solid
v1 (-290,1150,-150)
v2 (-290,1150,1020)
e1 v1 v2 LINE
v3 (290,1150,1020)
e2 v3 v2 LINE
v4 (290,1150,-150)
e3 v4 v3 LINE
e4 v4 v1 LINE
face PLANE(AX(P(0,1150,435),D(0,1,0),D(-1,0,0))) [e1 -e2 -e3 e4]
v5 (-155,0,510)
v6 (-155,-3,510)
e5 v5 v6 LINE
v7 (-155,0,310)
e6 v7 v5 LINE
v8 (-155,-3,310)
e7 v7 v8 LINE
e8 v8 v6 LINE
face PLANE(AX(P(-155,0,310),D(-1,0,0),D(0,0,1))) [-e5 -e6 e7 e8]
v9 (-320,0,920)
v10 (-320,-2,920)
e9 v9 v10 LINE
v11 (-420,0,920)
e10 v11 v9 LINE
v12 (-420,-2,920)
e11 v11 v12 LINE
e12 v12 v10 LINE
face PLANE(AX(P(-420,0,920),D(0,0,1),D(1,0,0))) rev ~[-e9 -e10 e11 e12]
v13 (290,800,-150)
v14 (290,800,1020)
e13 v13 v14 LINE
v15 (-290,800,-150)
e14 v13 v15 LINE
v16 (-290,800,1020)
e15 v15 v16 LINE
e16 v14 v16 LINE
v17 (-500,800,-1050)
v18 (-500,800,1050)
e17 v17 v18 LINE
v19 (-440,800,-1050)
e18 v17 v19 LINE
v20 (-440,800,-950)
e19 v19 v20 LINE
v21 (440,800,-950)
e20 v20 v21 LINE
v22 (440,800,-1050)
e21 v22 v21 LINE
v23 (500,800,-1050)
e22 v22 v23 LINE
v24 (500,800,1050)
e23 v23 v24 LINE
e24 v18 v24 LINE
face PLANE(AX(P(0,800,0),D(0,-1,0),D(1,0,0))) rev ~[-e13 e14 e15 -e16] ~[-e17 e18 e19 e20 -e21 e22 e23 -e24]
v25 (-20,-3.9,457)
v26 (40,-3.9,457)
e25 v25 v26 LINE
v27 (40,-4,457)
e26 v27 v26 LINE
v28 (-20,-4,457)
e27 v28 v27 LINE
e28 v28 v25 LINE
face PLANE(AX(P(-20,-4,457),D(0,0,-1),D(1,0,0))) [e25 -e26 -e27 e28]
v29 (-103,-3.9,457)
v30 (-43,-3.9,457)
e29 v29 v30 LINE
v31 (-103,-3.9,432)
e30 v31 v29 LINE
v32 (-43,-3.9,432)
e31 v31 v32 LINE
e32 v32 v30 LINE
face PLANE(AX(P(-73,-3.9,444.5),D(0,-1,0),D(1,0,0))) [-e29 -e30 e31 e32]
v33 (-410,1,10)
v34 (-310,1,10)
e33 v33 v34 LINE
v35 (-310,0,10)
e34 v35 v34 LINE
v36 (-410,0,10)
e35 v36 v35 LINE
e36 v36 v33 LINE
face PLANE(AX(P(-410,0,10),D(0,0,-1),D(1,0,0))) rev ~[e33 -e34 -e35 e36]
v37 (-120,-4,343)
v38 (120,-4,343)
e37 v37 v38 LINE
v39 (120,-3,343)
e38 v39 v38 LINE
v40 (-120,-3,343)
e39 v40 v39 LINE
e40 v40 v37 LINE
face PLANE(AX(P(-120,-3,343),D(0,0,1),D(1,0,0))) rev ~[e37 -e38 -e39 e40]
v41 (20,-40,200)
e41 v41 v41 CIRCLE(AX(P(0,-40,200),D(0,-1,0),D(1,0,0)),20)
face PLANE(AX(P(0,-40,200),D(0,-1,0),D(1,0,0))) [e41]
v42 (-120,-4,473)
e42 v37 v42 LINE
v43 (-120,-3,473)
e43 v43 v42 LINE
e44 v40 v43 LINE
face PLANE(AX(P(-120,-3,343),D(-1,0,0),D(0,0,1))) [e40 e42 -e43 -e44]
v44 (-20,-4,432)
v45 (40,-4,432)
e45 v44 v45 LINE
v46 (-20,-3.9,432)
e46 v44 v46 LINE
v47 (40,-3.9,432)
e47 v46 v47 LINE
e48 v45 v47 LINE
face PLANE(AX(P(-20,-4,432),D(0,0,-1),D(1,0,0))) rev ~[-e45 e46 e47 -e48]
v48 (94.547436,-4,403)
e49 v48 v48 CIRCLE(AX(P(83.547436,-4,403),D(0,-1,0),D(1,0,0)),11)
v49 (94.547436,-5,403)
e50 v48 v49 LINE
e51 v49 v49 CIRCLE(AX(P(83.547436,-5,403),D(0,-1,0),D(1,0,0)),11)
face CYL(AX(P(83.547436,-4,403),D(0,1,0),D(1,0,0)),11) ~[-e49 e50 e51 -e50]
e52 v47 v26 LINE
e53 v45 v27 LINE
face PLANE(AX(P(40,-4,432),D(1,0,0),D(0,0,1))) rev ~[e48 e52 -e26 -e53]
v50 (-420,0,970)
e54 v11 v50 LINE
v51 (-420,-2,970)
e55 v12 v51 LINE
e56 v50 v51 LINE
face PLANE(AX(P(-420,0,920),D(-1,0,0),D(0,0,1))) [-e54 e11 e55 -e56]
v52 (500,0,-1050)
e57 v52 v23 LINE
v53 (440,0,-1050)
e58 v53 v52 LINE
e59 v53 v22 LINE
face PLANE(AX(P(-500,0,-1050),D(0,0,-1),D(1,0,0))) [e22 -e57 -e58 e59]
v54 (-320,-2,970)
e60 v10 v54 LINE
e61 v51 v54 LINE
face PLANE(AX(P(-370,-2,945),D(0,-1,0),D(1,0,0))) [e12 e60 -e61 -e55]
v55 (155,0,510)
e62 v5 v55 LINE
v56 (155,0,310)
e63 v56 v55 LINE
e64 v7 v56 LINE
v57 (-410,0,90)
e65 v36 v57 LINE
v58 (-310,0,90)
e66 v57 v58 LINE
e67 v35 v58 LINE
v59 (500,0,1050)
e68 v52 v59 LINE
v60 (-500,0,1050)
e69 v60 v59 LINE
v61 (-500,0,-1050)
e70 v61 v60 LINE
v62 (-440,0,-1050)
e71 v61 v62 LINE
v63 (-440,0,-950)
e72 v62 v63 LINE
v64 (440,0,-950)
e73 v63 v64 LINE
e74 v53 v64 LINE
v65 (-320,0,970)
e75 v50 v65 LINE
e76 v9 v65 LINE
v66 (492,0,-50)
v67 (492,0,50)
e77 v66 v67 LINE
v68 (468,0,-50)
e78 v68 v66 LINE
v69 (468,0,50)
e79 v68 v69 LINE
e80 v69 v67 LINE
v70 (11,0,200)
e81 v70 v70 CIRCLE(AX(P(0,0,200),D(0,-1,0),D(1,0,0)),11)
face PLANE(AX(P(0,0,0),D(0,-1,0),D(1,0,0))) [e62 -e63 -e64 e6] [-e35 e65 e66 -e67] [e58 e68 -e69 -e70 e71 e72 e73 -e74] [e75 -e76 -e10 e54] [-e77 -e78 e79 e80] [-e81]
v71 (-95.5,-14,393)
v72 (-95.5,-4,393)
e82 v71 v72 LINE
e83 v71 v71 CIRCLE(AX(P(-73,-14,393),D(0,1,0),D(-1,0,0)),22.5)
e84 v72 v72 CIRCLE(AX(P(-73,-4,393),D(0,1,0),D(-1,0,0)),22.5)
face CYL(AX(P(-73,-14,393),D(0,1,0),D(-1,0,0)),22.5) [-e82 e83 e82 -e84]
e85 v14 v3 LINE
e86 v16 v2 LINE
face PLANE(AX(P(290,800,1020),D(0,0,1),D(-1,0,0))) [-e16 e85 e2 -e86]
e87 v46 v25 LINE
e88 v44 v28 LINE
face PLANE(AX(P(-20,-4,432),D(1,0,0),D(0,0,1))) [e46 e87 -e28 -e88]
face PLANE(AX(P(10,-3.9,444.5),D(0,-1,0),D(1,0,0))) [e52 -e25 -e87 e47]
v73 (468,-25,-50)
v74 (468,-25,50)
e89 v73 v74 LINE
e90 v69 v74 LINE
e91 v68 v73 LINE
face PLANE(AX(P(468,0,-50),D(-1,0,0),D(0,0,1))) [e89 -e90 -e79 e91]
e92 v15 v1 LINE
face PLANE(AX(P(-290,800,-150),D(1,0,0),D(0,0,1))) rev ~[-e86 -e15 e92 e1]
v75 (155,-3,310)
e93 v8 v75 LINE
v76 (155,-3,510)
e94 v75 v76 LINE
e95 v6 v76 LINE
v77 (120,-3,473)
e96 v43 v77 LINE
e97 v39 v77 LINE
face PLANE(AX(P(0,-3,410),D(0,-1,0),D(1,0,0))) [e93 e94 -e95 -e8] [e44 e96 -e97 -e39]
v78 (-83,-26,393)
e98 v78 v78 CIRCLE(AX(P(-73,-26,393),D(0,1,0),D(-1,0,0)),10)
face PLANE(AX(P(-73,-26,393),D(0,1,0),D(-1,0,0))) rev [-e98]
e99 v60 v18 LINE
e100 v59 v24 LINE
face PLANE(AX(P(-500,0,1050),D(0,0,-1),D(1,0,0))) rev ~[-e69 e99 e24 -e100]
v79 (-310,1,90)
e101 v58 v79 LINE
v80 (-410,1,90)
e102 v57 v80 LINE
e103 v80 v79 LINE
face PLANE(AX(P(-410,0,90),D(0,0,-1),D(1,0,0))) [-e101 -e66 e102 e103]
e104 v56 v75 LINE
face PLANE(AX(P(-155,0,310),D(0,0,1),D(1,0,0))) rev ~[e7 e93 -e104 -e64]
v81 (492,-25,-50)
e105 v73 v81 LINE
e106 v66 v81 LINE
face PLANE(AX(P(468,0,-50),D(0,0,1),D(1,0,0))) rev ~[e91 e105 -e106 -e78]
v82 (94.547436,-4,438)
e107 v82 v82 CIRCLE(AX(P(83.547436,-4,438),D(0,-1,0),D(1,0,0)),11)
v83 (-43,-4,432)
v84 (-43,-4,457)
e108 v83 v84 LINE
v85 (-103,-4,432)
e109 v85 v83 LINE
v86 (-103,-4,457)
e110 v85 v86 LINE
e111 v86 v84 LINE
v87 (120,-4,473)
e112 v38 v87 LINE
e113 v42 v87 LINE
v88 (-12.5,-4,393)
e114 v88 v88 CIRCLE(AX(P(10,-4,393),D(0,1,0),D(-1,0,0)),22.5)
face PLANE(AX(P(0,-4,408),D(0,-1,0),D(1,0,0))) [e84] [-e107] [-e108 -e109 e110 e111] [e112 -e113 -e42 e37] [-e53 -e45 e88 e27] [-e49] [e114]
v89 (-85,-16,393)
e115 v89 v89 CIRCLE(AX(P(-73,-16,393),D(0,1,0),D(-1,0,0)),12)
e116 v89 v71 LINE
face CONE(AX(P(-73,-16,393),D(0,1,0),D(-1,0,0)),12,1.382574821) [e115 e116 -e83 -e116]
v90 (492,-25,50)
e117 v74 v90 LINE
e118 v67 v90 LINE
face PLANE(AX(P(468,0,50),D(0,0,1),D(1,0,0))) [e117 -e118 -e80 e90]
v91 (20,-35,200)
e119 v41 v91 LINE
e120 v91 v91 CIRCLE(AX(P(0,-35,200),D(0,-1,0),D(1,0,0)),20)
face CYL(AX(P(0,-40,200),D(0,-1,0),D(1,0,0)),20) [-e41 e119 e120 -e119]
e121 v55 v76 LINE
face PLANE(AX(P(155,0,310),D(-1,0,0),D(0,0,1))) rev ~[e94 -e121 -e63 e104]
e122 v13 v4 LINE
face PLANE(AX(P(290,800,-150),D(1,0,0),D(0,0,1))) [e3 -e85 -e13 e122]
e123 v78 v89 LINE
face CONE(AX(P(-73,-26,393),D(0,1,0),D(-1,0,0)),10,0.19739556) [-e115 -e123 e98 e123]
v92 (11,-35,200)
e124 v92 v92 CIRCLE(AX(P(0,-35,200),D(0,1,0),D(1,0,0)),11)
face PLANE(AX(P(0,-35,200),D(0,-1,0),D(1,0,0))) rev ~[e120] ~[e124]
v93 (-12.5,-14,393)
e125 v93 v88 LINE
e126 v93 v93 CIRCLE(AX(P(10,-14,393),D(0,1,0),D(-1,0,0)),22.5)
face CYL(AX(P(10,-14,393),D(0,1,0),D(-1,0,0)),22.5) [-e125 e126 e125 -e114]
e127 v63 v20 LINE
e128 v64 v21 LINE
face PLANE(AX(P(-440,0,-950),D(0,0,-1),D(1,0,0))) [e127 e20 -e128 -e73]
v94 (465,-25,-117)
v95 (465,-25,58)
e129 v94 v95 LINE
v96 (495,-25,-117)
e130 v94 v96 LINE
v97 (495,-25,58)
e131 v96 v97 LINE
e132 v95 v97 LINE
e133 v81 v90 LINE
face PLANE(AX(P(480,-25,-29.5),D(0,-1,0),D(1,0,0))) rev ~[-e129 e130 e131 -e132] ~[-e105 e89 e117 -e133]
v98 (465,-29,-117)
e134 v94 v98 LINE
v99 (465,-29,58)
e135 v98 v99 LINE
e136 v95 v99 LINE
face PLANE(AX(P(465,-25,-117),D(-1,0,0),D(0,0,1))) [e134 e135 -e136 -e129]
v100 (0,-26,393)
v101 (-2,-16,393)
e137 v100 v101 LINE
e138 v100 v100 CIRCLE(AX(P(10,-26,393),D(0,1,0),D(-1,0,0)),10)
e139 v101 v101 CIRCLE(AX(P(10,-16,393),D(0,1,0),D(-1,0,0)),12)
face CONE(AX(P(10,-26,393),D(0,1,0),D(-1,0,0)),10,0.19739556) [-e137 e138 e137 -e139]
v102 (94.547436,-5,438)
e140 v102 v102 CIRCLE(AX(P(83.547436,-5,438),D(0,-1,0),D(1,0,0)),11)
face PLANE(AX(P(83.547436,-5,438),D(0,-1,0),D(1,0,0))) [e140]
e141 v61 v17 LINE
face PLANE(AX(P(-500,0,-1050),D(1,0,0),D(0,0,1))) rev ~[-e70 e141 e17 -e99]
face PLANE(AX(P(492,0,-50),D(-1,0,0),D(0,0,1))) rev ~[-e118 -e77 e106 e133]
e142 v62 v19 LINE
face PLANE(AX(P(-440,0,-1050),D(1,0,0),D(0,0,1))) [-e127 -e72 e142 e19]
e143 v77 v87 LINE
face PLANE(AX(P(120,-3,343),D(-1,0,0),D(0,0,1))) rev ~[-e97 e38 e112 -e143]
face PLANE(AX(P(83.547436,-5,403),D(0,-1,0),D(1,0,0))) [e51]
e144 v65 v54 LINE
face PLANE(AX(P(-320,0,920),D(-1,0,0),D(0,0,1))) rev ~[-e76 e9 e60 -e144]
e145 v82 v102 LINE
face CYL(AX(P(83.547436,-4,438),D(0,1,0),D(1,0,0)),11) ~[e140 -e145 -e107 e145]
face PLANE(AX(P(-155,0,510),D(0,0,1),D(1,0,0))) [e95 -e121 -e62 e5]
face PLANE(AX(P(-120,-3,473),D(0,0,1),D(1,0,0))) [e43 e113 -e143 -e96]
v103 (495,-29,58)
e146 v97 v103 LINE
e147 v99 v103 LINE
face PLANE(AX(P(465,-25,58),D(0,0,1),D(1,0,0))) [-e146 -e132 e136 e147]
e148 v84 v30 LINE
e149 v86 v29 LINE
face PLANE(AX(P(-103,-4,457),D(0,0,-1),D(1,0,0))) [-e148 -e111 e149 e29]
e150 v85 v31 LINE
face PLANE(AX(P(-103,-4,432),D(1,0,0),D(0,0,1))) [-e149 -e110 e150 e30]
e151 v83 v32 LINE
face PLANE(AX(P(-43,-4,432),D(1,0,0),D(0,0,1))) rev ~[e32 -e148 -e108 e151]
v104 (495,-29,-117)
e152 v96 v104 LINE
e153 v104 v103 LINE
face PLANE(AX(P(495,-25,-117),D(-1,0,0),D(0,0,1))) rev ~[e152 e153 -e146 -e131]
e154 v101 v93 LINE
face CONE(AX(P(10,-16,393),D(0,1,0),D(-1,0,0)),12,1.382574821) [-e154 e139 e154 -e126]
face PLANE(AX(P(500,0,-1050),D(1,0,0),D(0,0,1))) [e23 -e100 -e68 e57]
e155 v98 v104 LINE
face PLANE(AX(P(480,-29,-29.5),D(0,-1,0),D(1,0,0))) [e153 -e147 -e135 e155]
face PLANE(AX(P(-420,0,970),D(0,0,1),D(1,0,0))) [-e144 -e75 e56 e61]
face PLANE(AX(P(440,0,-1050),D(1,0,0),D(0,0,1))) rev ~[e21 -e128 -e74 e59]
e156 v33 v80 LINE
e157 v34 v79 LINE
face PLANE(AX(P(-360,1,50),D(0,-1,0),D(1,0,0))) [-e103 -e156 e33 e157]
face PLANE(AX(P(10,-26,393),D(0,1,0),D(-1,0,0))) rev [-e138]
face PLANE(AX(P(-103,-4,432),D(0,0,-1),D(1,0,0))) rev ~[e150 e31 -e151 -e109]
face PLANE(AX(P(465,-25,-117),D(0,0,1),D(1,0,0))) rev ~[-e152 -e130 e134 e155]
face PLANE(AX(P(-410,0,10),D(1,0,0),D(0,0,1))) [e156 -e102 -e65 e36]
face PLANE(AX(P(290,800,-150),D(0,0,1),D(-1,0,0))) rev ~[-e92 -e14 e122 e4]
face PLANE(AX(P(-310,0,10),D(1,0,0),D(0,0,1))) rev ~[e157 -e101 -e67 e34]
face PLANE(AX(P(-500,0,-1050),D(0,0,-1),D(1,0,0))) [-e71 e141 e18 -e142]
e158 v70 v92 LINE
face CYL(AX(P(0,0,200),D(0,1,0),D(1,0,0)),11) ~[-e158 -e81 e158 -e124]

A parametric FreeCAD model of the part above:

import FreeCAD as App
import Part
import Sketcher
from FreeCAD import Vector

doc = App.newDocument("Part")
params = doc.addObject("Spreadsheet::Sheet", "Params")
for row, (alias, value) in enumerate([
    ("sketch1_width", "1000 mm"),
    ("sketch1_height", "2100 mm"),
    ("pad1_length", "800 mm"),
    ("sketch2_width", "580 mm"),
    ("sketch2_height", "1170 mm"),
    ("pad2_length", "350 mm"),
    ("sketch3_diameter", "22 mm"),
    ("pad3_length", "40 mm"),
    ("sketch4_diameter", "40 mm"),
    ("pad4_length", "5 mm"),
    ("sketch5_width", "310 mm"),
    ("sketch5_height", "200 mm"),
    ("pad5_length", "3 mm"),
    ("sketch6_width", "100 mm"),
    ("sketch6_height", "80 mm"),
    ("pocket1_length", "1 mm"),
    ("sketch7_width", "880 mm"),
    ("sketch7_height", "100 mm"),
    ("sketch8_width", "24 mm"),
    ("sketch8_height", "100 mm"),
    ("pad6_length", "25 mm"),
    ("sketch9_width", "100 mm"),
    ("sketch9_height", "50 mm"),
    ("pad7_length", "2 mm"),
    ("sketch10_width", "30 mm"),
    ("sketch10_height", "175 mm"),
    ("pad8_length", "4 mm"),
    ("sketch11_width", "240 mm"),
    ("sketch11_height", "130 mm"),
    ("pad9_length", "1 mm"),
    ("sketch12_width", "60 mm"),
    ("sketch12_height", "25 mm"),
    ("pocket3_length", "0.1 mm"),
    ("sketch13_width", "10 mm"),
    ("sketch13_height", "22 mm"),
    ("sketch13_width2", "22.5 mm"),
    ("revolution_angle", "360 deg"),
    ("sketch14_width", "10 mm"),
    ("sketch14_height", "22 mm"),
    ("sketch14_width2", "22.5 mm"),
    ("revolution2_angle", "360 deg"),
    ("sketch15_diameter", "22 mm"),
    ("pad10_length", "1 mm"),
], start=1):
    params.set(f"A{row}", alias)
    params.set(f"B{row}", "=" + value)
    params.setAlias(f"B{row}", alias)

body = doc.addObject("PartDesign::Body", "Body")

sketch1 = body.newObject("Sketcher::SketchObject", "Sketch")
sketch1.AttachmentSupport = (doc.getObject("XZ_Plane"), [""])
sketch1.MapMode = "FlatFace"
sketch1.addGeometry(Part.LineSegment(Vector(-500, 1050, 0), Vector(-500, -1050, 0)), False)
sketch1.addGeometry(Part.LineSegment(Vector(-500, -1050, 0), Vector(500, -1050, 0)), False)
sketch1.addGeometry(Part.LineSegment(Vector(500, -1050, 0), Vector(500, 1050, 0)), False)
sketch1.addGeometry(Part.LineSegment(Vector(500, 1050, 0), Vector(-500, 1050, 0)), False)
sketch1.addConstraint(Sketcher.Constraint("Coincident", 0, 2, 1, 1))
sketch1.addConstraint(Sketcher.Constraint("Coincident", 1, 2, 2, 1))
sketch1.addConstraint(Sketcher.Constraint("Coincident", 2, 2, 3, 1))
sketch1.addConstraint(Sketcher.Constraint("Coincident", 3, 2, 0, 1))
sketch1.addConstraint(Sketcher.Constraint("Vertical", 0))
sketch1.addConstraint(Sketcher.Constraint("Horizontal", 1))
sketch1.addConstraint(Sketcher.Constraint("Vertical", 2))
sketch1.addConstraint(Sketcher.Constraint("Horizontal", 3))
sketch1.addConstraint(Sketcher.Constraint("Symmetric", 0, 2, 2, 2, -1, 1))
sketch1.addConstraint(Sketcher.Constraint("DistanceX", 1, 1, 1, 2, 1000.0))
sketch1.addConstraint(Sketcher.Constraint("DistanceY", 0, 2, 0, 1, 2100.0))
sketch1.setExpression("Constraints[9]", "Params.sketch1_width")
sketch1.setExpression("Constraints[10]", "Params.sketch1_height")
pad1 = body.newObject("PartDesign::Pad", "Pad")
pad1.Profile = sketch1
pad1.setExpression("Length", "Params.pad1_length")
pad1.Reversed = True

sketch2 = body.newObject("Sketcher::SketchObject", "Sketch001")
sketch2.AttachmentSupport = (doc.getObject("XZ_Plane"), [""])
sketch2.MapMode = "FlatFace"
sketch2.AttachmentOffset = App.Placement(Vector(0, 0, -800), App.Rotation())
sketch2.addGeometry(Part.LineSegment(Vector(290, 1020, 0), Vector(290, -150, 0)), False)
sketch2.addGeometry(Part.LineSegment(Vector(290, -150, 0), Vector(-290, -150, 0)), False)
sketch2.addGeometry(Part.LineSegment(Vector(-290, -150, 0), Vector(-290, 1020, 0)), False)
sketch2.addGeometry(Part.LineSegment(Vector(-290, 1020, 0), Vector(290, 1020, 0)), False)
sketch2.addConstraint(Sketcher.Constraint("Coincident", 0, 2, 1, 1))
sketch2.addConstraint(Sketcher.Constraint("Coincident", 1, 2, 2, 1))
sketch2.addConstraint(Sketcher.Constraint("Coincident", 2, 2, 3, 1))
sketch2.addConstraint(Sketcher.Constraint("Coincident", 3, 2, 0, 1))
sketch2.addConstraint(Sketcher.Constraint("Vertical", 0))
sketch2.addConstraint(Sketcher.Constraint("Horizontal", 1))
sketch2.addConstraint(Sketcher.Constraint("Vertical", 2))
sketch2.addConstraint(Sketcher.Constraint("Horizontal", 3))
sketch2.addConstraint(Sketcher.Constraint("DistanceX", 1, 2, 1, 1, 580.0))
sketch2.addConstraint(Sketcher.Constraint("DistanceY", 0, 2, 0, 1, 1170.0))
sketch2.addConstraint(Sketcher.Constraint("DistanceX", -1, 1, 0, 2, 290.0))
sketch2.addConstraint(Sketcher.Constraint("DistanceY", 0, 2, -1, 1, 150.0))
sketch2.setExpression("Constraints[8]", "Params.sketch2_width")
sketch2.setExpression("Constraints[9]", "Params.sketch2_height")
pad2 = body.newObject("PartDesign::Pad", "Pad001")
pad2.Profile = sketch2
pad2.setExpression("Length", "Params.pad2_length")
pad2.Reversed = True

sketch3 = body.newObject("Sketcher::SketchObject", "Sketch002")
sketch3.AttachmentSupport = (doc.getObject("XZ_Plane"), [""])
sketch3.MapMode = "FlatFace"
sketch3.addGeometry(Part.Circle(Vector(0, 200, 0), Vector(0, 0, 1), 11), False)
sketch3.addConstraint(Sketcher.Constraint("PointOnObject", 0, 3, -2))
sketch3.addConstraint(Sketcher.Constraint("Diameter", 0, 22.0))
sketch3.addConstraint(Sketcher.Constraint("DistanceY", -1, 1, 0, 3, 200.0))
sketch3.setExpression("Constraints[1]", "Params.sketch3_diameter")
pad3 = body.newObject("PartDesign::Pad", "Pad002")
pad3.Profile = sketch3
pad3.setExpression("Length", "Params.pad3_length")

sketch4 = body.newObject("Sketcher::SketchObject", "Sketch003")
sketch4.AttachmentSupport = (doc.getObject("XZ_Plane"), [""])
sketch4.MapMode = "FlatFace"
sketch4.AttachmentOffset = App.Placement(Vector(0, 0, 40), App.Rotation())
sketch4.addGeometry(Part.Circle(Vector(0, 200, 0), Vector(0, 0, 1), 20), False)
sketch4.addConstraint(Sketcher.Constraint("PointOnObject", 0, 3, -2))
sketch4.addConstraint(Sketcher.Constraint("Diameter", 0, 40.0))
sketch4.addConstraint(Sketcher.Constraint("DistanceY", -1, 1, 0, 3, 200.0))
sketch4.setExpression("Constraints[1]", "Params.sketch4_diameter")
pad4 = body.newObject("PartDesign::Pad", "Pad003")
pad4.Profile = sketch4
pad4.setExpression("Length", "Params.pad4_length")
pad4.Reversed = True

sketch5 = body.newObject("Sketcher::SketchObject", "Sketch004")
sketch5.AttachmentSupport = (doc.getObject("XZ_Plane"), [""])
sketch5.MapMode = "FlatFace"
sketch5.addGeometry(Part.LineSegment(Vector(-155, 510, 0), Vector(-155, 310, 0)), False)
sketch5.addGeometry(Part.LineSegment(Vector(-155, 310, 0), Vector(155, 310, 0)), False)
sketch5.addGeometry(Part.LineSegment(Vector(155, 310, 0), Vector(155, 510, 0)), False)
sketch5.addGeometry(Part.LineSegment(Vector(155, 510, 0), Vector(-155, 510, 0)), False)
sketch5.addConstraint(Sketcher.Constraint("Coincident", 0, 2, 1, 1))
sketch5.addConstraint(Sketcher.Constraint("Coincident", 1, 2, 2, 1))
sketch5.addConstraint(Sketcher.Constraint("Coincident", 2, 2, 3, 1))
sketch5.addConstraint(Sketcher.Constraint("Coincident", 3, 2, 0, 1))
sketch5.addConstraint(Sketcher.Constraint("Vertical", 0))
sketch5.addConstraint(Sketcher.Constraint("Horizontal", 1))
sketch5.addConstraint(Sketcher.Constraint("Vertical", 2))
sketch5.addConstraint(Sketcher.Constraint("Horizontal", 3))
sketch5.addConstraint(Sketcher.Constraint("DistanceX", 1, 1, 1, 2, 310.0))
sketch5.addConstraint(Sketcher.Constraint("DistanceY", 0, 2, 0, 1, 200.0))
sketch5.addConstraint(Sketcher.Constraint("DistanceX", 0, 2, -1, 1, 155.0))
sketch5.addConstraint(Sketcher.Constraint("DistanceY", -1, 1, 0, 2, 310.0))
sketch5.setExpression("Constraints[8]", "Params.sketch5_width")
sketch5.setExpression("Constraints[9]", "Params.sketch5_height")
pad5 = body.newObject("PartDesign::Pad", "Pad004")
pad5.Profile = sketch5
pad5.setExpression("Length", "Params.pad5_length")

sketch6 = body.newObject("Sketcher::SketchObject", "Sketch005")
sketch6.AttachmentSupport = (doc.getObject("XZ_Plane"), [""])
sketch6.MapMode = "FlatFace"
sketch6.addGeometry(Part.LineSegment(Vector(-410, 90, 0), Vector(-410, 10, 0)), False)
sketch6.addGeometry(Part.LineSegment(Vector(-410, 10, 0), Vector(-310, 10, 0)), False)
sketch6.addGeometry(Part.LineSegment(Vector(-310, 10, 0), Vector(-310, 90, 0)), False)
sketch6.addGeometry(Part.LineSegment(Vector(-310, 90, 0), Vector(-410, 90, 0)), False)
sketch6.addConstraint(Sketcher.Constraint("Coincident", 0, 2, 1, 1))
sketch6.addConstraint(Sketcher.Constraint("Coincident", 1, 2, 2, 1))
sketch6.addConstraint(Sketcher.Constraint("Coincident", 2, 2, 3, 1))
sketch6.addConstraint(Sketcher.Constraint("Coincident", 3, 2, 0, 1))
sketch6.addConstraint(Sketcher.Constraint("Vertical", 0))
sketch6.addConstraint(Sketcher.Constraint("Horizontal", 1))
sketch6.addConstraint(Sketcher.Constraint("Vertical", 2))
sketch6.addConstraint(Sketcher.Constraint("Horizontal", 3))
sketch6.addConstraint(Sketcher.Constraint("DistanceX", 1, 1, 1, 2, 100.0))
sketch6.addConstraint(Sketcher.Constraint("DistanceY", 0, 2, 0, 1, 80.0))
sketch6.addConstraint(Sketcher.Constraint("DistanceX", 0, 2, -1, 1, 410.0))
sketch6.addConstraint(Sketcher.Constraint("DistanceY", -1, 1, 0, 2, 10.0))
sketch6.setExpression("Constraints[8]", "Params.sketch6_width")
sketch6.setExpression("Constraints[9]", "Params.sketch6_height")
pocket1 = body.newObject("PartDesign::Pocket", "Pocket")
pocket1.Profile = sketch6
pocket1.setExpression("Length", "Params.pocket1_length")

sketch7 = body.newObject("Sketcher::SketchObject", "Sketch006")
sketch7.AttachmentSupport = (doc.getObject("XZ_Plane"), [""])
sketch7.MapMode = "FlatFace"
sketch7.addGeometry(Part.LineSegment(Vector(-440, -950, 0), Vector(-440, -1050, 0)), False)
sketch7.addGeometry(Part.LineSegment(Vector(-440, -1050, 0), Vector(440, -1050, 0)), False)
sketch7.addGeometry(Part.LineSegment(Vector(440, -1050, 0), Vector(440, -950, 0)), False)
sketch7.addGeometry(Part.LineSegment(Vector(440, -950, 0), Vector(-440, -950, 0)), False)
sketch7.addConstraint(Sketcher.Constraint("Coincident", 0, 2, 1, 1))
sketch7.addConstraint(Sketcher.Constraint("Coincident", 1, 2, 2, 1))
sketch7.addConstraint(Sketcher.Constraint("Coincident", 2, 2, 3, 1))
sketch7.addConstraint(Sketcher.Constraint("Coincident", 3, 2, 0, 1))
sketch7.addConstraint(Sketcher.Constraint("Vertical", 0))
sketch7.addConstraint(Sketcher.Constraint("Horizontal", 1))
sketch7.addConstraint(Sketcher.Constraint("Vertical", 2))
sketch7.addConstraint(Sketcher.Constraint("Horizontal", 3))
sketch7.addConstraint(Sketcher.Constraint("DistanceX", 1, 1, 1, 2, 880.0))
sketch7.addConstraint(Sketcher.Constraint("DistanceY", 0, 2, 0, 1, 100.0))
sketch7.addConstraint(Sketcher.Constraint("DistanceX", 0, 2, -1, 1, 440.0))
sketch7.addConstraint(Sketcher.Constraint("DistanceY", 0, 2, -1, 1, 1050.0))
sketch7.setExpression("Constraints[8]", "Params.sketch7_width")
sketch7.setExpression("Constraints[9]", "Params.sketch7_height")
pocket2 = body.newObject("PartDesign::Pocket", "Pocket001")
pocket2.Profile = sketch7
pocket2.Type = "ThroughAll"

sketch8 = body.newObject("Sketcher::SketchObject", "Sketch007")
sketch8.AttachmentSupport = (doc.getObject("XZ_Plane"), [""])
sketch8.MapMode = "FlatFace"
sketch8.addGeometry(Part.LineSegment(Vector(468, 50, 0), Vector(468, -50, 0)), False)
sketch8.addGeometry(Part.LineSegment(Vector(468, -50, 0), Vector(492, -50, 0)), False)
sketch8.addGeometry(Part.LineSegment(Vector(492, -50, 0), Vector(492, 50, 0)), False)
sketch8.addGeometry(Part.LineSegment(Vector(492, 50, 0), Vector(468, 50, 0)), False)
sketch8.addConstraint(Sketcher.Constraint("Coincident", 0, 2, 1, 1))
sketch8.addConstraint(Sketcher.Constraint("Coincident", 1, 2, 2, 1))
sketch8.addConstraint(Sketcher.Constraint("Coincident", 2, 2, 3, 1))
sketch8.addConstraint(Sketcher.Constraint("Coincident", 3, 2, 0, 1))
sketch8.addConstraint(Sketcher.Constraint("Vertical", 0))
sketch8.addConstraint(Sketcher.Constraint("Horizontal", 1))
sketch8.addConstraint(Sketcher.Constraint("Vertical", 2))
sketch8.addConstraint(Sketcher.Constraint("Horizontal", 3))
sketch8.addConstraint(Sketcher.Constraint("DistanceX", 1, 1, 1, 2, 24.0))
sketch8.addConstraint(Sketcher.Constraint("DistanceY", 0, 2, 0, 1, 100.0))
sketch8.addConstraint(Sketcher.Constraint("DistanceX", -1, 1, 0, 2, 468.0))
sketch8.addConstraint(Sketcher.Constraint("DistanceY", 0, 2, -1, 1, 50.0))
sketch8.setExpression("Constraints[8]", "Params.sketch8_width")
sketch8.setExpression("Constraints[9]", "Params.sketch8_height")
pad6 = body.newObject("PartDesign::Pad", "Pad005")
pad6.Profile = sketch8
pad6.setExpression("Length", "Params.pad6_length")

sketch9 = body.newObject("Sketcher::SketchObject", "Sketch008")
sketch9.AttachmentSupport = (doc.getObject("XZ_Plane"), [""])
sketch9.MapMode = "FlatFace"
sketch9.addGeometry(Part.LineSegment(Vector(-420, 970, 0), Vector(-420, 920, 0)), False)
sketch9.addGeometry(Part.LineSegment(Vector(-420, 920, 0), Vector(-320, 920, 0)), False)
sketch9.addGeometry(Part.LineSegment(Vector(-320, 920, 0), Vector(-320, 970, 0)), False)
sketch9.addGeometry(Part.LineSegment(Vector(-320, 970, 0), Vector(-420, 970, 0)), False)
sketch9.addConstraint(Sketcher.Constraint("Coincident", 0, 2, 1, 1))
sketch9.addConstraint(Sketcher.Constraint("Coincident", 1, 2, 2, 1))
sketch9.addConstraint(Sketcher.Constraint("Coincident", 2, 2, 3, 1))
sketch9.addConstraint(Sketcher.Constraint("Coincident", 3, 2, 0, 1))
sketch9.addConstraint(Sketcher.Constraint("Vertical", 0))
sketch9.addConstraint(Sketcher.Constraint("Horizontal", 1))
sketch9.addConstraint(Sketcher.Constraint("Vertical", 2))
sketch9.addConstraint(Sketcher.Constraint("Horizontal", 3))
sketch9.addConstraint(Sketcher.Constraint("DistanceX", 1, 1, 1, 2, 100.0))
sketch9.addConstraint(Sketcher.Constraint("DistanceY", 0, 2, 0, 1, 50.0))
sketch9.addConstraint(Sketcher.Constraint("DistanceX", 0, 2, -1, 1, 420.0))
sketch9.addConstraint(Sketcher.Constraint("DistanceY", -1, 1, 0, 2, 920.0))
sketch9.setExpression("Constraints[8]", "Params.sketch9_width")
sketch9.setExpression("Constraints[9]", "Params.sketch9_height")
pad7 = body.newObject("PartDesign::Pad", "Pad006")
pad7.Profile = sketch9
pad7.setExpression("Length", "Params.pad7_length")

sketch10 = body.newObject("Sketcher::SketchObject", "Sketch009")
sketch10.AttachmentSupport = (doc.getObject("XZ_Plane"), [""])
sketch10.MapMode = "FlatFace"
sketch10.AttachmentOffset = App.Placement(Vector(0, 0, 25), App.Rotation())
sketch10.addGeometry(Part.LineSegment(Vector(465, 58, 0), Vector(465, -117, 0)), False)
sketch10.addGeometry(Part.LineSegment(Vector(465, -117, 0), Vector(495, -117, 0)), False)
sketch10.addGeometry(Part.LineSegment(Vector(495, -117, 0), Vector(495, 58, 0)), False)
sketch10.addGeometry(Part.LineSegment(Vector(495, 58, 0), Vector(465, 58, 0)), False)
sketch10.addConstraint(Sketcher.Constraint("Coincident", 0, 2, 1, 1))
sketch10.addConstraint(Sketcher.Constraint("Coincident", 1, 2, 2, 1))
sketch10.addConstraint(Sketcher.Constraint("Coincident", 2, 2, 3, 1))
sketch10.addConstraint(Sketcher.Constraint("Coincident", 3, 2, 0, 1))
sketch10.addConstraint(Sketcher.Constraint("Vertical", 0))
sketch10.addConstraint(Sketcher.Constraint("Horizontal", 1))
sketch10.addConstraint(Sketcher.Constraint("Vertical", 2))
sketch10.addConstraint(Sketcher.Constraint("Horizontal", 3))
sketch10.addConstraint(Sketcher.Constraint("DistanceX", 1, 1, 1, 2, 30.0))
sketch10.addConstraint(Sketcher.Constraint("DistanceY", 0, 2, 0, 1, 175.0))
sketch10.addConstraint(Sketcher.Constraint("DistanceX", -1, 1, 0, 2, 465.0))
sketch10.addConstraint(Sketcher.Constraint("DistanceY", 0, 2, -1, 1, 117.0))
sketch10.setExpression("Constraints[8]", "Params.sketch10_width")
sketch10.setExpression("Constraints[9]", "Params.sketch10_height")
pad8 = body.newObject("PartDesign::Pad", "Pad007")
pad8.Profile = sketch10
pad8.setExpression("Length", "Params.pad8_length")

sketch11 = body.newObject("Sketcher::SketchObject", "Sketch010")
sketch11.AttachmentSupport = (doc.getObject("XZ_Plane"), [""])
sketch11.MapMode = "FlatFace"
sketch11.AttachmentOffset = App.Placement(Vector(0, 0, 3), App.Rotation())
sketch11.addGeometry(Part.LineSegment(Vector(-120, 473, 0), Vector(-120, 343, 0)), False)
sketch11.addGeometry(Part.LineSegment(Vector(-120, 343, 0), Vector(120, 343, 0)), False)
sketch11.addGeometry(Part.LineSegment(Vector(120, 343, 0), Vector(120, 473, 0)), False)
sketch11.addGeometry(Part.LineSegment(Vector(120, 473, 0), Vector(-120, 473, 0)), False)
sketch11.addConstraint(Sketcher.Constraint("Coincident", 0, 2, 1, 1))
sketch11.addConstraint(Sketcher.Constraint("Coincident", 1, 2, 2, 1))
sketch11.addConstraint(Sketcher.Constraint("Coincident", 2, 2, 3, 1))
sketch11.addConstraint(Sketcher.Constraint("Coincident", 3, 2, 0, 1))
sketch11.addConstraint(Sketcher.Constraint("Vertical", 0))
sketch11.addConstraint(Sketcher.Constraint("Horizontal", 1))
sketch11.addConstraint(Sketcher.Constraint("Vertical", 2))
sketch11.addConstraint(Sketcher.Constraint("Horizontal", 3))
sketch11.addConstraint(Sketcher.Constraint("DistanceX", 1, 1, 1, 2, 240.0))
sketch11.addConstraint(Sketcher.Constraint("DistanceY", 0, 2, 0, 1, 130.0))
sketch11.addConstraint(Sketcher.Constraint("DistanceX", 0, 2, -1, 1, 120.0))
sketch11.addConstraint(Sketcher.Constraint("DistanceY", -1, 1, 0, 2, 343.0))
sketch11.setExpression("Constraints[8]", "Params.sketch11_width")
sketch11.setExpression("Constraints[9]", "Params.sketch11_height")
pad9 = body.newObject("PartDesign::Pad", "Pad008")
pad9.Profile = sketch11
pad9.setExpression("Length", "Params.pad9_length")

sketch12 = body.newObject("Sketcher::SketchObject", "Sketch011")
sketch12.AttachmentSupport = (doc.getObject("XZ_Plane"), [""])
sketch12.MapMode = "FlatFace"
sketch12.AttachmentOffset = App.Placement(Vector(0, 0, 4), App.Rotation())
sketch12.addGeometry(Part.LineSegment(Vector(-103, 457, 0), Vector(-103, 432, 0)), False)
sketch12.addGeometry(Part.LineSegment(Vector(-103, 432, 0), Vector(-43, 432, 0)), False)
sketch12.addGeometry(Part.LineSegment(Vector(-43, 432, 0), Vector(-43, 457, 0)), False)
sketch12.addGeometry(Part.LineSegment(Vector(-43, 457, 0), Vector(-103, 457, 0)), False)
sketch12.addGeometry(Part.LineSegment(Vector(-20, 457, 0), Vector(-20, 432, 0)), False)
sketch12.addGeometry(Part.LineSegment(Vector(-20, 432, 0), Vector(40, 432, 0)), False)
sketch12.addGeometry(Part.LineSegment(Vector(40, 432, 0), Vector(40, 457, 0)), False)
sketch12.addGeometry(Part.LineSegment(Vector(40, 457, 0), Vector(-20, 457, 0)), False)
sketch12.addConstraint(Sketcher.Constraint("Coincident", 0, 2, 1, 1))
sketch12.addConstraint(Sketcher.Constraint("Coincident", 1, 2, 2, 1))
sketch12.addConstraint(Sketcher.Constraint("Coincident", 2, 2, 3, 1))
sketch12.addConstraint(Sketcher.Constraint("Coincident", 3, 2, 0, 1))
sketch12.addConstraint(Sketcher.Constraint("Coincident", 4, 2, 5, 1))
sketch12.addConstraint(Sketcher.Constraint("Coincident", 5, 2, 6, 1))
sketch12.addConstraint(Sketcher.Constraint("Coincident", 6, 2, 7, 1))
sketch12.addConstraint(Sketcher.Constraint("Coincident", 7, 2, 4, 1))
sketch12.addConstraint(Sketcher.Constraint("Vertical", 0))
sketch12.addConstraint(Sketcher.Constraint("Horizontal", 1))
sketch12.addConstraint(Sketcher.Constraint("Vertical", 2))
sketch12.addConstraint(Sketcher.Constraint("Horizontal", 3))
sketch12.addConstraint(Sketcher.Constraint("Vertical", 4))
sketch12.addConstraint(Sketcher.Constraint("Horizontal", 5))
sketch12.addConstraint(Sketcher.Constraint("Vertical", 6))
sketch12.addConstraint(Sketcher.Constraint("Horizontal", 7))
sketch12.addConstraint(Sketcher.Constraint("Horizontal", 1, 2, 4, 2))
sketch12.addConstraint(Sketcher.Constraint("Horizontal", 3, 2, 6, 2))
sketch12.addConstraint(Sketcher.Constraint("Equal", 3, 5))
sketch12.addConstraint(Sketcher.Constraint("DistanceX", 1, 1, 1, 2, 60.0))
sketch12.addConstraint(Sketcher.Constraint("DistanceY", 0, 2, 0, 1, 25.0))
sketch12.addConstraint(Sketcher.Constraint("DistanceX", 0, 2, -1, 1, 103.0))
sketch12.addConstraint(Sketcher.Constraint("DistanceY", -1, 1, 0, 2, 432.0))
sketch12.addConstraint(Sketcher.Constraint("DistanceX", 4, 2, -1, 1, 20.0))
sketch12.setExpression("Constraints[19]", "Params.sketch12_width")
sketch12.setExpression("Constraints[20]", "Params.sketch12_height")
pocket3 = body.newObject("PartDesign::Pocket", "Pocket002")
pocket3.Profile = sketch12
pocket3.setExpression("Length", "Params.pocket3_length")

sketch13 = body.newObject("Sketcher::SketchObject", "Sketch012")
sketch13.AttachmentSupport = (doc.getObject("XY_Plane"), [""])
sketch13.MapMode = "FlatFace"
sketch13.AttachmentOffset = App.Placement(Vector(0, 0, 393), App.Rotation())
sketch13.addGeometry(Part.LineSegment(Vector(-96, -4, 0), Vector(-73, -4, 0)), False)
sketch13.addGeometry(Part.LineSegment(Vector(-73, -4, 0), Vector(-73, -26, 0)), False)
sketch13.addGeometry(Part.LineSegment(Vector(-73, -26, 0), Vector(-83, -26, 0)), False)
sketch13.addGeometry(Part.LineSegment(Vector(-83, -26, 0), Vector(-85, -16, 0)), False)
sketch13.addGeometry(Part.LineSegment(Vector(-85, -16, 0), Vector(-96, -14, 0)), False)
sketch13.addGeometry(Part.LineSegment(Vector(-96, -14, 0), Vector(-96, -4, 0)), False)
sketch13.addGeometry(Part.LineSegment(Vector(-73, -26, 0), Vector(-73, -4, 0)), True)
sketch13.addConstraint(Sketcher.Constraint("Coincident", 0, 2, 1, 1))
sketch13.addConstraint(Sketcher.Constraint("Coincident", 1, 2, 2, 1))
sketch13.addConstraint(Sketcher.Constraint("Coincident", 2, 2, 3, 1))
sketch13.addConstraint(Sketcher.Constraint("Coincident", 3, 2, 4, 1))
sketch13.addConstraint(Sketcher.Constraint("Coincident", 4, 2, 5, 1))
sketch13.addConstraint(Sketcher.Constraint("Coincident", 5, 2, 0, 1))
sketch13.addConstraint(Sketcher.Constraint("Horizontal", 0))
sketch13.addConstraint(Sketcher.Constraint("Vertical", 1))
sketch13.addConstraint(Sketcher.Constraint("Horizontal", 2))
sketch13.addConstraint(Sketcher.Constraint("Vertical", 5))
sketch13.addConstraint(Sketcher.Constraint("Vertical", 6))
sketch13.addConstraint(Sketcher.Constraint("Coincident", 6, 1, 1, 2))
sketch13.addConstraint(Sketcher.Constraint("Horizontal", 5, 2, 6, 2))
sketch13.addConstraint(Sketcher.Constraint("Equal", 2, 5))
sketch13.addConstraint(Sketcher.Constraint("DistanceX", 2, 2, 2, 1, 10.0))
sketch13.addConstraint(Sketcher.Constraint("DistanceY", 1, 2, 1, 1, 22.0))
sketch13.addConstraint(Sketcher.Constraint("DistanceX", 0, 1, 0, 2, 22.5))
sketch13.addConstraint(Sketcher.Constraint("DistanceX", 0, 2, -1, 1, 73.0))
sketch13.addConstraint(Sketcher.Constraint("DistanceY", 0, 2, -1, 1, 4.0))
sketch13.addConstraint(Sketcher.Constraint("DistanceX", 3, 2, -1, 1, 85.0))
sketch13.addConstraint(Sketcher.Constraint("DistanceY", 3, 2, -1, 1, 16.0))
sketch13.setExpression("Constraints[14]", "Params.sketch13_width")
sketch13.setExpression("Constraints[15]", "Params.sketch13_height")
sketch13.setExpression("Constraints[16]", "Params.sketch13_width2")
revolution = body.newObject("PartDesign::Revolution", "Revolution")
revolution.Profile = sketch13
revolution.ReferenceAxis = (sketch13, ["Axis0"])
revolution.setExpression("Angle", "Params.revolution_angle")

sketch14 = body.newObject("Sketcher::SketchObject", "Sketch013")
sketch14.AttachmentSupport = (doc.getObject("XY_Plane"), [""])
sketch14.MapMode = "FlatFace"
sketch14.AttachmentOffset = App.Placement(Vector(0, 0, 393), App.Rotation())
sketch14.addGeometry(Part.LineSegment(Vector(-12, -4, 0), Vector(10, -4, 0)), False)
sketch14.addGeometry(Part.LineSegment(Vector(10, -4, 0), Vector(10, -26, 0)), False)
sketch14.addGeometry(Part.LineSegment(Vector(10, -26, 0), Vector(0, -26, 0)), False)
sketch14.addGeometry(Part.LineSegment(Vector(0, -26, 0), Vector(-2, -16, 0)), False)
sketch14.addGeometry(Part.LineSegment(Vector(-2, -16, 0), Vector(-12, -14, 0)), False)
sketch14.addGeometry(Part.LineSegment(Vector(-12, -14, 0), Vector(-12, -4, 0)), False)
sketch14.addGeometry(Part.LineSegment(Vector(10, -26, 0), Vector(10, -4, 0)), True)
sketch14.addConstraint(Sketcher.Constraint("Coincident", 0, 2, 1, 1))
sketch14.addConstraint(Sketcher.Constraint("Coincident", 1, 2, 2, 1))
sketch14.addConstraint(Sketcher.Constraint("Coincident", 2, 2, 3, 1))
sketch14.addConstraint(Sketcher.Constraint("Coincident", 3, 2, 4, 1))
sketch14.addConstraint(Sketcher.Constraint("Coincident", 4, 2, 5, 1))
sketch14.addConstraint(Sketcher.Constraint("Coincident", 5, 2, 0, 1))
sketch14.addConstraint(Sketcher.Constraint("Horizontal", 0))
sketch14.addConstraint(Sketcher.Constraint("Vertical", 1))
sketch14.addConstraint(Sketcher.Constraint("Horizontal", 2))
sketch14.addConstraint(Sketcher.Constraint("Vertical", 5))
sketch14.addConstraint(Sketcher.Constraint("Vertical", 6))
sketch14.addConstraint(Sketcher.Constraint("Coincident", 6, 1, 1, 2))
sketch14.addConstraint(Sketcher.Constraint("PointOnObject", 2, 2, -2))
sketch14.addConstraint(Sketcher.Constraint("Horizontal", 5, 2, 6, 2))
sketch14.addConstraint(Sketcher.Constraint("Equal", 2, 5))
sketch14.addConstraint(Sketcher.Constraint("DistanceX", 2, 2, 2, 1, 10.0))
sketch14.addConstraint(Sketcher.Constraint("DistanceY", 1, 2, 1, 1, 22.0))
sketch14.addConstraint(Sketcher.Constraint("DistanceX", 0, 1, 0, 2, 22.5))
sketch14.addConstraint(Sketcher.Constraint("DistanceY", 0, 2, -1, 1, 4.0))
sketch14.addConstraint(Sketcher.Constraint("DistanceX", 3, 2, -1, 1, 2.0))
sketch14.addConstraint(Sketcher.Constraint("DistanceY", 3, 2, -1, 1, 16.0))
sketch14.setExpression("Constraints[15]", "Params.sketch14_width")
sketch14.setExpression("Constraints[16]", "Params.sketch14_height")
sketch14.setExpression("Constraints[17]", "Params.sketch14_width2")
revolution2 = body.newObject("PartDesign::Revolution", "Revolution001")
revolution2.Profile = sketch14
revolution2.ReferenceAxis = (sketch14, ["Axis0"])
revolution2.setExpression("Angle", "Params.revolution2_angle")

sketch15 = body.newObject("Sketcher::SketchObject", "Sketch014")
sketch15.AttachmentSupport = (doc.getObject("XZ_Plane"), [""])
sketch15.MapMode = "FlatFace"
sketch15.AttachmentOffset = App.Placement(Vector(0, 0, 4), App.Rotation())
sketch15.addGeometry(Part.Circle(Vector(84, 438, 0), Vector(0, 0, 1), 11), False)
sketch15.addGeometry(Part.Circle(Vector(84, 403, 0), Vector(0, 0, 1), 11), False)
sketch15.addConstraint(Sketcher.Constraint("Equal", 0, 1))
sketch15.addConstraint(Sketcher.Constraint("Vertical", 0, 3, 1, 3))
sketch15.addConstraint(Sketcher.Constraint("Diameter", 0, 22.0))
sketch15.addConstraint(Sketcher.Constraint("DistanceY", -1, 1, 0, 3, 438.0))
sketch15.addConstraint(Sketcher.Constraint("DistanceY", -1, 1, 1, 3, 403.0))
sketch15.addConstraint(Sketcher.Constraint("DistanceX", -1, 1, 0, 3, 83.547436))
sketch15.setExpression("Constraints[2]", "Params.sketch15_diameter")
pad10 = body.newObject("PartDesign::Pad", "Pad009")
pad10.Profile = sketch15
pad10.setExpression("Length", "Params.pad10_length")

doc.recompute()
